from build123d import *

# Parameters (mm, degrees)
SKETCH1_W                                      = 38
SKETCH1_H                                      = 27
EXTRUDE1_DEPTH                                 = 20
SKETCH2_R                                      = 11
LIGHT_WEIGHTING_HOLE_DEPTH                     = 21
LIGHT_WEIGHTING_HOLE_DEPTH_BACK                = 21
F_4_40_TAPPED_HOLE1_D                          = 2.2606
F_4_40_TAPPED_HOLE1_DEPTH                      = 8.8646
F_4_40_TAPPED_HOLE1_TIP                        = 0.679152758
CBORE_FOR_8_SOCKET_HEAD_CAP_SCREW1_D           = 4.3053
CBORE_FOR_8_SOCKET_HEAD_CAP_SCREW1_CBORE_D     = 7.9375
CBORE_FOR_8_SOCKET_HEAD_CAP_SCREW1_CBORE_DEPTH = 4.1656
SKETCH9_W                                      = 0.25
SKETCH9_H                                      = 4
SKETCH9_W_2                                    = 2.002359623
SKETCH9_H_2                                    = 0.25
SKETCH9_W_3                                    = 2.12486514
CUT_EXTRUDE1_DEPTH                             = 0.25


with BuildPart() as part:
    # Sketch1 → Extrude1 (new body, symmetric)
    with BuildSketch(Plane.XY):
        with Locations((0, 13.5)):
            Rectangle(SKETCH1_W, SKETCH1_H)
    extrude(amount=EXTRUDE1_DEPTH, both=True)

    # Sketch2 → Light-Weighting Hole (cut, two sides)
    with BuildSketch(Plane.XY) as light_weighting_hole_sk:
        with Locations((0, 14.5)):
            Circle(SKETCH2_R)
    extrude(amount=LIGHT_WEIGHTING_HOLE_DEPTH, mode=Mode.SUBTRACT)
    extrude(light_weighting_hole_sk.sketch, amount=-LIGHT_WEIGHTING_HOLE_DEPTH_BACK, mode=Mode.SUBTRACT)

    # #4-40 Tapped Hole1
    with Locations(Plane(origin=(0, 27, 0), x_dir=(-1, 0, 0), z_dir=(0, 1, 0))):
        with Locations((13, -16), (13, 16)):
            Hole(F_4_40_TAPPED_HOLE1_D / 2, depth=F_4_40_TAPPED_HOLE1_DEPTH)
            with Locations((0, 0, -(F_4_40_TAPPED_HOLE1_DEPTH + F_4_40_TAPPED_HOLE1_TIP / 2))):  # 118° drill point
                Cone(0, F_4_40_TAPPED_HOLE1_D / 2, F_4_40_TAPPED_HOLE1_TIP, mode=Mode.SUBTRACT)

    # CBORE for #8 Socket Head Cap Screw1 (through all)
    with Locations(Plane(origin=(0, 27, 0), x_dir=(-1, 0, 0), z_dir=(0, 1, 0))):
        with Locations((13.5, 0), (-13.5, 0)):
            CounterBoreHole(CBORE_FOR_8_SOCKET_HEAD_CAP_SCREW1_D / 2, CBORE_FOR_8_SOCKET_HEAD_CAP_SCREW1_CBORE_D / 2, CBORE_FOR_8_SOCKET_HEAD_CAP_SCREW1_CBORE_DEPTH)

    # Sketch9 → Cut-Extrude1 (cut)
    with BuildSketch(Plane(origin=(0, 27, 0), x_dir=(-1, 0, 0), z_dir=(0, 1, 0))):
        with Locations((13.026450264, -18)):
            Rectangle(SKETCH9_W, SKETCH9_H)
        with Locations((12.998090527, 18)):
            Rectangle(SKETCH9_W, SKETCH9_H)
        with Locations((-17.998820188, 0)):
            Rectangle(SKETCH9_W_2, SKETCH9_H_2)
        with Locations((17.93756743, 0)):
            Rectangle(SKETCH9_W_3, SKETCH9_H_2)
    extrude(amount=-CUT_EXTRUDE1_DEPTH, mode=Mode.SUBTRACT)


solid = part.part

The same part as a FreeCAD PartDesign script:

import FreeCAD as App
import Part
import Sketcher

V = App.Vector
Q = App.Units.Quantity

doc = App.newDocument("Part")
body = doc.addObject("PartDesign::Body", "Body")

# Sketch on XY plane
sketch1 = body.newObject("Sketcher::SketchObject", "Sketch")
sketch1.AttachmentSupport = (doc.getObject("XY_Plane"), [""])
sketch1.MapMode = "FlatFace"
sketch1.addGeometry([
    Part.LineSegment(V(-19, 27, 0), V(-19, 0, 0)),
    Part.LineSegment(V(-19, 0, 0), V(19, 0, 0)),
    Part.LineSegment(V(19, 0, 0), V(19, 27, 0)),
    Part.LineSegment(V(19, 27, 0), V(-19, 27, 0)),
], False)
sketch1.addConstraint([
    Sketcher.Constraint("Coincident", 0, 2, 1, 1),
    Sketcher.Constraint("Coincident", 1, 2, 2, 1),
    Sketcher.Constraint("Coincident", 2, 2, 3, 1),
    Sketcher.Constraint("Coincident", 3, 2, 0, 1),
    Sketcher.Constraint("Vertical", 0),
    Sketcher.Constraint("Horizontal", 1),
    Sketcher.Constraint("Vertical", 2),
    Sketcher.Constraint("Horizontal", 3),
    Sketcher.Constraint("Symmetric", 0, 2, 1, 2, -1, 1),
    Sketcher.Constraint("DistanceX", 1, 1, 1, 2, Q("38 mm")),
    Sketcher.Constraint("DistanceY", 0, 2, 0, 1, Q("27 mm")),
])
pad1 = body.newObject("PartDesign::Pad", "Pad")
pad1.Profile = sketch1
pad1.Length = 40
pad1.Midplane = True

# Sketch on XY plane
sketch2 = body.newObject("Sketcher::SketchObject", "Sketch001")
sketch2.AttachmentSupport = (doc.getObject("XY_Plane"), [""])
sketch2.MapMode = "FlatFace"
sketch2.addGeometry(Part.Circle(V(0, 14, 0), V(0, 0, 1), 11), False)
sketch2.addConstraint([
    Sketcher.Constraint("PointOnObject", 0, 3, -2),
    Sketcher.Constraint("Diameter", 0, Q("22 mm")),
    Sketcher.Constraint("DistanceY", -1, 1, 0, 3, Q("14.5 mm")),
])
pocket1 = body.newObject("PartDesign::Pocket", "Pocket")
pocket1.Profile = sketch2
pocket1.Type = "ThroughAll"
pocket1.Midplane = True

# Sketch on XZ plane
sketch3 = body.newObject("Sketcher::SketchObject", "Sketch002")
sketch3.AttachmentSupport = (doc.getObject("XZ_Plane"), [""])
sketch3.MapMode = "FlatFace"
sketch3.AttachmentOffset = App.Placement(V(0, 0, -27), App.Rotation())
sketch3.addGeometry([
    Part.Circle(V(-13, -16, 0), V(0, 0, 1), 1.1),
    Part.Circle(V(-13, 16, 0), V(0, 0, 1), 1.1),
], False)
sketch3.addConstraint([
    Sketcher.Constraint("Equal", 0, 1),
    Sketcher.Constraint("Symmetric", 0, 3, 1, 3, -1),
    Sketcher.Constraint("DistanceX", 0, 3, -1, 1, Q("13 mm")),
    Sketcher.Constraint("DistanceY", 0, 3, -1, 1, Q("16 mm")),
    Sketcher.Constraint("Diameter", 0, Q("2.2606 mm")),
])
doc.recompute()
hole = body.newObject("PartDesign::Hole", "Hole")
hole.Profile = sketch3
hole.ThreadType = "None"
hole.Diameter = 2.2606
hole.DepthType = "Dimension"
hole.Depth = 8.8646
hole.DrillPoint = "Angled"
hole.DrillPointAngle = 118
hole.Reversed = True

# Sketch on XZ plane
sketch4 = body.newObject("Sketcher::SketchObject", "Sketch003")
sketch4.AttachmentSupport = (doc.getObject("XZ_Plane"), [""])
sketch4.MapMode = "FlatFace"
sketch4.AttachmentOffset = App.Placement(V(0, 0, -27), App.Rotation())
sketch4.addGeometry([
    Part.Circle(V(-13.5, 0, 0), V(0, 0, 1), 2.2),
    Part.Circle(V(13.5, 0, 0), V(0, 0, 1), 2.2),
], False)
sketch4.addConstraint([
    Sketcher.Constraint("Equal", 0, 1),
    Sketcher.Constraint("Symmetric", 0, 3, 1, 3, -1, 1),
    Sketcher.Constraint("PointOnObject", 0, 3, -1),
    Sketcher.Constraint("DistanceX", 0, 3, 1, 3, Q("27 mm")),
    Sketcher.Constraint("Diameter", 0, Q("4.3053 mm")),
])
doc.recompute()
hole2 = body.newObject("PartDesign::Hole", "Hole001")
hole2.Profile = sketch4
hole2.ThreadType = "None"
hole2.Diameter = 4.3053
hole2.DepthType = "ThroughAll"
hole2.HoleCutType = "Counterbore"
hole2.HoleCutDiameter = 7.9375
hole2.HoleCutDepth = 4.1656
hole2.Reversed = True

# Sketch on XZ plane
sketch5 = body.newObject("Sketcher::SketchObject", "Sketch004")
sketch5.AttachmentSupport = (doc.getObject("XZ_Plane"), [""])
sketch5.MapMode = "FlatFace"
sketch5.AttachmentOffset = App.Placement(V(0, 0, -27), App.Rotation())
sketch5.addGeometry([
    Part.LineSegment(V(-12.9, -16, 0), V(-12.9, -20, 0)),  # 0
    Part.LineSegment(V(-12.9, -20, 0), V(-13.15, -20, 0)),  # 1
    Part.LineSegment(V(-13.15, -20, 0), V(-13.15, -16, 0)),  # 2
    Part.LineSegment(V(-13.15, -16, 0), V(-12.9, -16, 0)),  # 3
    Part.LineSegment(V(-12.87, 20, 0), V(-12.87, 16, 0)),  # 4
    Part.LineSegment(V(-12.87, 16, 0), V(-13.12, 16, 0)),  # 5
    Part.LineSegment(V(-13.12, 16, 0), V(-13.12, 20, 0)),  # 6
    Part.LineSegment(V(-13.12, 20, 0), V(-12.87, 20, 0)),  # 7
    Part.LineSegment(V(19, 0.12, 0), V(19, -0.12, 0)),  # 8
    Part.LineSegment(V(19, -0.12, 0), V(17, -0.12, 0)),  # 9
    Part.LineSegment(V(17, -0.12, 0), V(17, 0.12, 0)),  # 10
    Part.LineSegment(V(17, 0.12, 0), V(19, 0.12, 0)),  # 11
    Part.LineSegment(V(-16.88, 0.12, 0), V(-16.88, -0.12, 0)),  # 12
    Part.LineSegment(V(-16.88, -0.12, 0), V(-19, -0.12, 0)),  # 13
    Part.LineSegment(V(-19, -0.12, 0), V(-19, 0.12, 0)),  # 14
    Part.LineSegment(V(-19, 0.12, 0), V(-16.88, 0.12, 0)),  # 15
], False)
sketch5.addConstraint([
    Sketcher.Constraint("Coincident", 0, 2, 1, 1),
    Sketcher.Constraint("Coincident", 1, 2, 2, 1),
    Sketcher.Constraint("Coincident", 2, 2, 3, 1),
    Sketcher.Constraint("Coincident", 3, 2, 0, 1),
    Sketcher.Constraint("Coincident", 4, 2, 5, 1),
    Sketcher.Constraint("Coincident", 5, 2, 6, 1),
    Sketcher.Constraint("Coincident", 6, 2, 7, 1),
    Sketcher.Constraint("Coincident", 7, 2, 4, 1),
    Sketcher.Constraint("Coincident", 8, 2, 9, 1),
    Sketcher.Constraint("Coincident", 9, 2, 10, 1),
    Sketcher.Constraint("Coincident", 10, 2, 11, 1),
    Sketcher.Constraint("Coincident", 11, 2, 8, 1),
    Sketcher.Constraint("Coincident", 12, 2, 13, 1),
    Sketcher.Constraint("Coincident", 13, 2, 14, 1),
    Sketcher.Constraint("Coincident", 14, 2, 15, 1),
    Sketcher.Constraint("Coincident", 15, 2, 12, 1),
    Sketcher.Constraint("Vertical", 0),
    Sketcher.Constraint("Horizontal", 1),
    Sketcher.Constraint("Vertical", 2),
    Sketcher.Constraint("Horizontal", 3),
    Sketcher.Constraint("Vertical", 4),
    Sketcher.Constraint("Horizontal", 5),
    Sketcher.Constraint("Vertical", 6),
    Sketcher.Constraint("Horizontal", 7),
    Sketcher.Constraint("Vertical", 8),
    Sketcher.Constraint("Horizontal", 9),
    Sketcher.Constraint("Vertical", 10),
    Sketcher.Constraint("Horizontal", 11),
    Sketcher.Constraint("Vertical", 12),
    Sketcher.Constraint("Horizontal", 13),
    Sketcher.Constraint("Vertical", 14),
    Sketcher.Constraint("Horizontal", 15),
    Sketcher.Constraint("Symmetric", 11, 2, 13, 2, -1, 1),
    Sketcher.Constraint("Horizontal", 9, 2, 12, 2),
    Sketcher.Constraint("Horizontal", 11, 2, 14, 2),
    Sketcher.Constraint("Equal", 3, 5),
    Sketcher.Constraint("Equal", 2, 4),
    Sketcher.Constraint("Equal", 7, 8),
    Sketcher.Constraint("DistanceY", 0, 2, 0, 1, Q("4 mm")),
    Sketcher.Constraint("DistanceY", 0, 2, -1, 1, Q("20 mm")),
    Sketcher.Constraint("DistanceY", -1, 1, 4, 2, Q("16 mm")),
    Sketcher.Constraint("DistanceX", -1, 1, 8, 2, Q("19 mm")),
    Sketcher.Constraint("DistanceX", 1, 2, 1, 1, Q("0.25 mm")),
    Sketcher.Constraint("DistanceX", 9, 2, 9, 1, Q("2.00236 mm")),
    Sketcher.Constraint("DistanceX", 13, 2, 13, 1, Q("2.124865 mm")),
    Sketcher.Constraint("DistanceX", 0, 2, -1, 1, Q("12.90145 mm")),
    Sketcher.Constraint("DistanceX", 4, 2, -1, 1, Q("12.873091 mm")),
])
pocket2 = body.newObject("PartDesign::Pocket", "Pocket001")
pocket2.Profile = sketch5
pocket2.Length = 0.25
pocket2.Reversed = True

doc.recompute()
